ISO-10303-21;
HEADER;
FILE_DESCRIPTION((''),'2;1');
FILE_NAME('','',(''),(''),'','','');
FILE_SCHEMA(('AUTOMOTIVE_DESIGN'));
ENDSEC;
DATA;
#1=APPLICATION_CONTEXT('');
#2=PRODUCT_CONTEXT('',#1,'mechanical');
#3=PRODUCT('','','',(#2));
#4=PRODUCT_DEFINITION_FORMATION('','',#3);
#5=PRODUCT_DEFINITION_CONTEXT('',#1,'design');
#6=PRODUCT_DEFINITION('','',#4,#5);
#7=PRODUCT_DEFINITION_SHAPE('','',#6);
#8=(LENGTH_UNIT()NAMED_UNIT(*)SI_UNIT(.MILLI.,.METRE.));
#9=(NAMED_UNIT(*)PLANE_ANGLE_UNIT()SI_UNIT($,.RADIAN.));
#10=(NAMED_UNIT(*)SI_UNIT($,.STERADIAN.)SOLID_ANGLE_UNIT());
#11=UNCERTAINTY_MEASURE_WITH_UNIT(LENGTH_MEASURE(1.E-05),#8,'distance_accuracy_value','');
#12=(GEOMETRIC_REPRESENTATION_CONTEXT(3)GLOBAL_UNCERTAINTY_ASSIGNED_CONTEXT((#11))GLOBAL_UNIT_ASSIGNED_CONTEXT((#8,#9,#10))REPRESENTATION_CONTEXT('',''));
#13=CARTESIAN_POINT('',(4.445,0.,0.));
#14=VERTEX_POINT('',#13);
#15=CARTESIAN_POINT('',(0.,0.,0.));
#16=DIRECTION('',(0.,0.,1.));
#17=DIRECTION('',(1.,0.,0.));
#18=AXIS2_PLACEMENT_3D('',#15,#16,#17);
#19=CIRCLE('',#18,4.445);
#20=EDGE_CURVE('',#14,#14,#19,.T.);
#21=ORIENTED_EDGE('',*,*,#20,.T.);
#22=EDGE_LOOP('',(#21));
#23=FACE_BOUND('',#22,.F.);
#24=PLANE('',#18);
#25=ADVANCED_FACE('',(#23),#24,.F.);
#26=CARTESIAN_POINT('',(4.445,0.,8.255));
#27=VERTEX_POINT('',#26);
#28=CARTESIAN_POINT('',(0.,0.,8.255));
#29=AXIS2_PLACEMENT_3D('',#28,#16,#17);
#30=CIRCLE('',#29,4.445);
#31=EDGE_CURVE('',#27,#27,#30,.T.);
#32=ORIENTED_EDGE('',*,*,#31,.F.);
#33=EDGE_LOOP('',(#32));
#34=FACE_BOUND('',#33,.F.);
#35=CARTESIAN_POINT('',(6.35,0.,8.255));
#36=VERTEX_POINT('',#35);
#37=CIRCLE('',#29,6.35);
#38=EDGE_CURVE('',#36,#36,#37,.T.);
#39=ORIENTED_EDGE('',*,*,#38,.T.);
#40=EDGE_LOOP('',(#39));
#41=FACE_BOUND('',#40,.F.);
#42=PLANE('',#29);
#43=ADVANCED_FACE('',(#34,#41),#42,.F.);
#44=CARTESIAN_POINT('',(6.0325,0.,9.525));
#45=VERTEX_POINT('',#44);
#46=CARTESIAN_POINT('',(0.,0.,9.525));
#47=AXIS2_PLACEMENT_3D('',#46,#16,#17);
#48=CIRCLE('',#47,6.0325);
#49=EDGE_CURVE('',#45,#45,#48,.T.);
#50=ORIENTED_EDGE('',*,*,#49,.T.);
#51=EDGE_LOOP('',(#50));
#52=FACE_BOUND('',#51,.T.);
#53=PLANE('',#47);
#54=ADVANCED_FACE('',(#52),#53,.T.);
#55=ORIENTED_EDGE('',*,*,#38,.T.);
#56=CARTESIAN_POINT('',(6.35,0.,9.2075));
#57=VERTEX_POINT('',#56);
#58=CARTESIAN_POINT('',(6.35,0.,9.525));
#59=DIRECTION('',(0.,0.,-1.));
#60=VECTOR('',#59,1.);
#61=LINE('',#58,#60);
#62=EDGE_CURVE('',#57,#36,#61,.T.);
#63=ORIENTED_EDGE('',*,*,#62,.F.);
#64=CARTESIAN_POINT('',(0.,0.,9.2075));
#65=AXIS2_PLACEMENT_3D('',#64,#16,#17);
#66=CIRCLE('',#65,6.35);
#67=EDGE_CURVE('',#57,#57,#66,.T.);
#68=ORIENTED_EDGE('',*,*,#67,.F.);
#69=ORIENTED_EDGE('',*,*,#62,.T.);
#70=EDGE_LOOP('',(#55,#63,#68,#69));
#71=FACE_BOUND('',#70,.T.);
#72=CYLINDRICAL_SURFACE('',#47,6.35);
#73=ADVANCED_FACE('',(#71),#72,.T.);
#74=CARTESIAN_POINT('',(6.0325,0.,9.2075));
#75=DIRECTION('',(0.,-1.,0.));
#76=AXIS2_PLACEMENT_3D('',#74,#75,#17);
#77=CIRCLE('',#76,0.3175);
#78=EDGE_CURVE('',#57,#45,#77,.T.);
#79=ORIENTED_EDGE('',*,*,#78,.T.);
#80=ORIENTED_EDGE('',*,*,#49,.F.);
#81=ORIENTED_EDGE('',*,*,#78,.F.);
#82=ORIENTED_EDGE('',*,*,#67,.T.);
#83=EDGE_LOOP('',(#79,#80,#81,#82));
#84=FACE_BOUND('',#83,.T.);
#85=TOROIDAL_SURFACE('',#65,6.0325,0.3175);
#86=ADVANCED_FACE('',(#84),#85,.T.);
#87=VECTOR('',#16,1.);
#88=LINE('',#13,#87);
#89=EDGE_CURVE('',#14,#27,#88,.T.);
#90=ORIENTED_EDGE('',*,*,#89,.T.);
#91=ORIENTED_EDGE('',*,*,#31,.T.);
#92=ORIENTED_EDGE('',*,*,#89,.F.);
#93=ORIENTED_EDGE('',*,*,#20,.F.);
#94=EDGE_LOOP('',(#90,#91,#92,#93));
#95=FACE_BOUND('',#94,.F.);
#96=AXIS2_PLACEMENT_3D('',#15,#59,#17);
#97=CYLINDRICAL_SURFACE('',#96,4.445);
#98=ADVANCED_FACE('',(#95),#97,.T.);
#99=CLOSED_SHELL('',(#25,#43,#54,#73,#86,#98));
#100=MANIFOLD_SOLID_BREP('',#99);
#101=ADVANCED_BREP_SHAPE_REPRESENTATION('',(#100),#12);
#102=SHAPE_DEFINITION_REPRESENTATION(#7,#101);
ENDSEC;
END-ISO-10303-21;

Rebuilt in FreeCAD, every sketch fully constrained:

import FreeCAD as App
import Part
import Sketcher
from FreeCAD import Vector
Q = App.Units.Quantity


def edges_at(feature, points):
    """Names of the edges that pass closest to the given points."""
    edges = feature.Shape.Edges
    near = lambda p: min(range(len(edges)), key=lambda i: edges[i].distToShape(Part.Vertex(*p))[0])
    return sorted({f"Edge{near(p) + 1}" for p in points})

doc = App.newDocument("Part")
body = doc.addObject("PartDesign::Body", "Body")

# Sketch on XY plane
sketch1 = doc.addObject("Sketcher::SketchObject", "Sketch")
body.addObject(sketch1)
sketch1.AttachmentSupport = (doc.XY_Plane, [""])
sketch1.MapMode = "FlatFace"
sketch1.addGeometry(Part.Circle(Vector(0, 0, 0), Vector(0, 0, 1), 4.445), False)
sketch1.addConstraint([
    Sketcher.Constraint("Coincident", 0, 3, -1, 1),
    Sketcher.Constraint("Diameter", 0, Q("0.35 in")),
])
pad1 = doc.addObject("PartDesign::Pad", "Pad")
body.addObject(pad1)
pad1.Profile = sketch1
pad1.Length = Q("0.375 in")

# Sketch on XY plane
sketch2 = doc.addObject("Sketcher::SketchObject", "Sketch001")
body.addObject(sketch2)
sketch2.AttachmentSupport = (doc.XY_Plane, [""])
sketch2.MapMode = "FlatFace"
sketch2.AttachmentOffset = App.Placement(Vector(0, 0, 0.375 * 25.4), App.Rotation())
sketch2.addGeometry([
    Part.Circle(Vector(0, 0, 0), Vector(0, 0, 1), 6.35),
    Part.Circle(Vector(0, 0, 0), Vector(0, 0, 1), 4.445),
], False)
sketch2.addConstraint([
    Sketcher.Constraint("Coincident", 0, 3, -1, 1),
    Sketcher.Constraint("Coincident", 1, 3, -1, 1),
    Sketcher.Constraint("Diameter", 0, Q("0.5 in")),
    Sketcher.Constraint("Diameter", 1, Q("0.35 in")),
])
pad2 = doc.addObject("PartDesign::Pad", "Pad001")
body.addObject(pad2)
pad2.Profile = sketch2
pad2.Length = Q("0.05 in")
pad2.Reversed = True
doc.recompute()

fillet = doc.addObject("PartDesign::Fillet", "Fillet")
body.addObject(fillet)
fillet.Base = (pad2, edges_at(pad2, [(-6.35, 0, 9.525)]))
fillet.Radius = Q("0.0125 in")

doc.recompute()
